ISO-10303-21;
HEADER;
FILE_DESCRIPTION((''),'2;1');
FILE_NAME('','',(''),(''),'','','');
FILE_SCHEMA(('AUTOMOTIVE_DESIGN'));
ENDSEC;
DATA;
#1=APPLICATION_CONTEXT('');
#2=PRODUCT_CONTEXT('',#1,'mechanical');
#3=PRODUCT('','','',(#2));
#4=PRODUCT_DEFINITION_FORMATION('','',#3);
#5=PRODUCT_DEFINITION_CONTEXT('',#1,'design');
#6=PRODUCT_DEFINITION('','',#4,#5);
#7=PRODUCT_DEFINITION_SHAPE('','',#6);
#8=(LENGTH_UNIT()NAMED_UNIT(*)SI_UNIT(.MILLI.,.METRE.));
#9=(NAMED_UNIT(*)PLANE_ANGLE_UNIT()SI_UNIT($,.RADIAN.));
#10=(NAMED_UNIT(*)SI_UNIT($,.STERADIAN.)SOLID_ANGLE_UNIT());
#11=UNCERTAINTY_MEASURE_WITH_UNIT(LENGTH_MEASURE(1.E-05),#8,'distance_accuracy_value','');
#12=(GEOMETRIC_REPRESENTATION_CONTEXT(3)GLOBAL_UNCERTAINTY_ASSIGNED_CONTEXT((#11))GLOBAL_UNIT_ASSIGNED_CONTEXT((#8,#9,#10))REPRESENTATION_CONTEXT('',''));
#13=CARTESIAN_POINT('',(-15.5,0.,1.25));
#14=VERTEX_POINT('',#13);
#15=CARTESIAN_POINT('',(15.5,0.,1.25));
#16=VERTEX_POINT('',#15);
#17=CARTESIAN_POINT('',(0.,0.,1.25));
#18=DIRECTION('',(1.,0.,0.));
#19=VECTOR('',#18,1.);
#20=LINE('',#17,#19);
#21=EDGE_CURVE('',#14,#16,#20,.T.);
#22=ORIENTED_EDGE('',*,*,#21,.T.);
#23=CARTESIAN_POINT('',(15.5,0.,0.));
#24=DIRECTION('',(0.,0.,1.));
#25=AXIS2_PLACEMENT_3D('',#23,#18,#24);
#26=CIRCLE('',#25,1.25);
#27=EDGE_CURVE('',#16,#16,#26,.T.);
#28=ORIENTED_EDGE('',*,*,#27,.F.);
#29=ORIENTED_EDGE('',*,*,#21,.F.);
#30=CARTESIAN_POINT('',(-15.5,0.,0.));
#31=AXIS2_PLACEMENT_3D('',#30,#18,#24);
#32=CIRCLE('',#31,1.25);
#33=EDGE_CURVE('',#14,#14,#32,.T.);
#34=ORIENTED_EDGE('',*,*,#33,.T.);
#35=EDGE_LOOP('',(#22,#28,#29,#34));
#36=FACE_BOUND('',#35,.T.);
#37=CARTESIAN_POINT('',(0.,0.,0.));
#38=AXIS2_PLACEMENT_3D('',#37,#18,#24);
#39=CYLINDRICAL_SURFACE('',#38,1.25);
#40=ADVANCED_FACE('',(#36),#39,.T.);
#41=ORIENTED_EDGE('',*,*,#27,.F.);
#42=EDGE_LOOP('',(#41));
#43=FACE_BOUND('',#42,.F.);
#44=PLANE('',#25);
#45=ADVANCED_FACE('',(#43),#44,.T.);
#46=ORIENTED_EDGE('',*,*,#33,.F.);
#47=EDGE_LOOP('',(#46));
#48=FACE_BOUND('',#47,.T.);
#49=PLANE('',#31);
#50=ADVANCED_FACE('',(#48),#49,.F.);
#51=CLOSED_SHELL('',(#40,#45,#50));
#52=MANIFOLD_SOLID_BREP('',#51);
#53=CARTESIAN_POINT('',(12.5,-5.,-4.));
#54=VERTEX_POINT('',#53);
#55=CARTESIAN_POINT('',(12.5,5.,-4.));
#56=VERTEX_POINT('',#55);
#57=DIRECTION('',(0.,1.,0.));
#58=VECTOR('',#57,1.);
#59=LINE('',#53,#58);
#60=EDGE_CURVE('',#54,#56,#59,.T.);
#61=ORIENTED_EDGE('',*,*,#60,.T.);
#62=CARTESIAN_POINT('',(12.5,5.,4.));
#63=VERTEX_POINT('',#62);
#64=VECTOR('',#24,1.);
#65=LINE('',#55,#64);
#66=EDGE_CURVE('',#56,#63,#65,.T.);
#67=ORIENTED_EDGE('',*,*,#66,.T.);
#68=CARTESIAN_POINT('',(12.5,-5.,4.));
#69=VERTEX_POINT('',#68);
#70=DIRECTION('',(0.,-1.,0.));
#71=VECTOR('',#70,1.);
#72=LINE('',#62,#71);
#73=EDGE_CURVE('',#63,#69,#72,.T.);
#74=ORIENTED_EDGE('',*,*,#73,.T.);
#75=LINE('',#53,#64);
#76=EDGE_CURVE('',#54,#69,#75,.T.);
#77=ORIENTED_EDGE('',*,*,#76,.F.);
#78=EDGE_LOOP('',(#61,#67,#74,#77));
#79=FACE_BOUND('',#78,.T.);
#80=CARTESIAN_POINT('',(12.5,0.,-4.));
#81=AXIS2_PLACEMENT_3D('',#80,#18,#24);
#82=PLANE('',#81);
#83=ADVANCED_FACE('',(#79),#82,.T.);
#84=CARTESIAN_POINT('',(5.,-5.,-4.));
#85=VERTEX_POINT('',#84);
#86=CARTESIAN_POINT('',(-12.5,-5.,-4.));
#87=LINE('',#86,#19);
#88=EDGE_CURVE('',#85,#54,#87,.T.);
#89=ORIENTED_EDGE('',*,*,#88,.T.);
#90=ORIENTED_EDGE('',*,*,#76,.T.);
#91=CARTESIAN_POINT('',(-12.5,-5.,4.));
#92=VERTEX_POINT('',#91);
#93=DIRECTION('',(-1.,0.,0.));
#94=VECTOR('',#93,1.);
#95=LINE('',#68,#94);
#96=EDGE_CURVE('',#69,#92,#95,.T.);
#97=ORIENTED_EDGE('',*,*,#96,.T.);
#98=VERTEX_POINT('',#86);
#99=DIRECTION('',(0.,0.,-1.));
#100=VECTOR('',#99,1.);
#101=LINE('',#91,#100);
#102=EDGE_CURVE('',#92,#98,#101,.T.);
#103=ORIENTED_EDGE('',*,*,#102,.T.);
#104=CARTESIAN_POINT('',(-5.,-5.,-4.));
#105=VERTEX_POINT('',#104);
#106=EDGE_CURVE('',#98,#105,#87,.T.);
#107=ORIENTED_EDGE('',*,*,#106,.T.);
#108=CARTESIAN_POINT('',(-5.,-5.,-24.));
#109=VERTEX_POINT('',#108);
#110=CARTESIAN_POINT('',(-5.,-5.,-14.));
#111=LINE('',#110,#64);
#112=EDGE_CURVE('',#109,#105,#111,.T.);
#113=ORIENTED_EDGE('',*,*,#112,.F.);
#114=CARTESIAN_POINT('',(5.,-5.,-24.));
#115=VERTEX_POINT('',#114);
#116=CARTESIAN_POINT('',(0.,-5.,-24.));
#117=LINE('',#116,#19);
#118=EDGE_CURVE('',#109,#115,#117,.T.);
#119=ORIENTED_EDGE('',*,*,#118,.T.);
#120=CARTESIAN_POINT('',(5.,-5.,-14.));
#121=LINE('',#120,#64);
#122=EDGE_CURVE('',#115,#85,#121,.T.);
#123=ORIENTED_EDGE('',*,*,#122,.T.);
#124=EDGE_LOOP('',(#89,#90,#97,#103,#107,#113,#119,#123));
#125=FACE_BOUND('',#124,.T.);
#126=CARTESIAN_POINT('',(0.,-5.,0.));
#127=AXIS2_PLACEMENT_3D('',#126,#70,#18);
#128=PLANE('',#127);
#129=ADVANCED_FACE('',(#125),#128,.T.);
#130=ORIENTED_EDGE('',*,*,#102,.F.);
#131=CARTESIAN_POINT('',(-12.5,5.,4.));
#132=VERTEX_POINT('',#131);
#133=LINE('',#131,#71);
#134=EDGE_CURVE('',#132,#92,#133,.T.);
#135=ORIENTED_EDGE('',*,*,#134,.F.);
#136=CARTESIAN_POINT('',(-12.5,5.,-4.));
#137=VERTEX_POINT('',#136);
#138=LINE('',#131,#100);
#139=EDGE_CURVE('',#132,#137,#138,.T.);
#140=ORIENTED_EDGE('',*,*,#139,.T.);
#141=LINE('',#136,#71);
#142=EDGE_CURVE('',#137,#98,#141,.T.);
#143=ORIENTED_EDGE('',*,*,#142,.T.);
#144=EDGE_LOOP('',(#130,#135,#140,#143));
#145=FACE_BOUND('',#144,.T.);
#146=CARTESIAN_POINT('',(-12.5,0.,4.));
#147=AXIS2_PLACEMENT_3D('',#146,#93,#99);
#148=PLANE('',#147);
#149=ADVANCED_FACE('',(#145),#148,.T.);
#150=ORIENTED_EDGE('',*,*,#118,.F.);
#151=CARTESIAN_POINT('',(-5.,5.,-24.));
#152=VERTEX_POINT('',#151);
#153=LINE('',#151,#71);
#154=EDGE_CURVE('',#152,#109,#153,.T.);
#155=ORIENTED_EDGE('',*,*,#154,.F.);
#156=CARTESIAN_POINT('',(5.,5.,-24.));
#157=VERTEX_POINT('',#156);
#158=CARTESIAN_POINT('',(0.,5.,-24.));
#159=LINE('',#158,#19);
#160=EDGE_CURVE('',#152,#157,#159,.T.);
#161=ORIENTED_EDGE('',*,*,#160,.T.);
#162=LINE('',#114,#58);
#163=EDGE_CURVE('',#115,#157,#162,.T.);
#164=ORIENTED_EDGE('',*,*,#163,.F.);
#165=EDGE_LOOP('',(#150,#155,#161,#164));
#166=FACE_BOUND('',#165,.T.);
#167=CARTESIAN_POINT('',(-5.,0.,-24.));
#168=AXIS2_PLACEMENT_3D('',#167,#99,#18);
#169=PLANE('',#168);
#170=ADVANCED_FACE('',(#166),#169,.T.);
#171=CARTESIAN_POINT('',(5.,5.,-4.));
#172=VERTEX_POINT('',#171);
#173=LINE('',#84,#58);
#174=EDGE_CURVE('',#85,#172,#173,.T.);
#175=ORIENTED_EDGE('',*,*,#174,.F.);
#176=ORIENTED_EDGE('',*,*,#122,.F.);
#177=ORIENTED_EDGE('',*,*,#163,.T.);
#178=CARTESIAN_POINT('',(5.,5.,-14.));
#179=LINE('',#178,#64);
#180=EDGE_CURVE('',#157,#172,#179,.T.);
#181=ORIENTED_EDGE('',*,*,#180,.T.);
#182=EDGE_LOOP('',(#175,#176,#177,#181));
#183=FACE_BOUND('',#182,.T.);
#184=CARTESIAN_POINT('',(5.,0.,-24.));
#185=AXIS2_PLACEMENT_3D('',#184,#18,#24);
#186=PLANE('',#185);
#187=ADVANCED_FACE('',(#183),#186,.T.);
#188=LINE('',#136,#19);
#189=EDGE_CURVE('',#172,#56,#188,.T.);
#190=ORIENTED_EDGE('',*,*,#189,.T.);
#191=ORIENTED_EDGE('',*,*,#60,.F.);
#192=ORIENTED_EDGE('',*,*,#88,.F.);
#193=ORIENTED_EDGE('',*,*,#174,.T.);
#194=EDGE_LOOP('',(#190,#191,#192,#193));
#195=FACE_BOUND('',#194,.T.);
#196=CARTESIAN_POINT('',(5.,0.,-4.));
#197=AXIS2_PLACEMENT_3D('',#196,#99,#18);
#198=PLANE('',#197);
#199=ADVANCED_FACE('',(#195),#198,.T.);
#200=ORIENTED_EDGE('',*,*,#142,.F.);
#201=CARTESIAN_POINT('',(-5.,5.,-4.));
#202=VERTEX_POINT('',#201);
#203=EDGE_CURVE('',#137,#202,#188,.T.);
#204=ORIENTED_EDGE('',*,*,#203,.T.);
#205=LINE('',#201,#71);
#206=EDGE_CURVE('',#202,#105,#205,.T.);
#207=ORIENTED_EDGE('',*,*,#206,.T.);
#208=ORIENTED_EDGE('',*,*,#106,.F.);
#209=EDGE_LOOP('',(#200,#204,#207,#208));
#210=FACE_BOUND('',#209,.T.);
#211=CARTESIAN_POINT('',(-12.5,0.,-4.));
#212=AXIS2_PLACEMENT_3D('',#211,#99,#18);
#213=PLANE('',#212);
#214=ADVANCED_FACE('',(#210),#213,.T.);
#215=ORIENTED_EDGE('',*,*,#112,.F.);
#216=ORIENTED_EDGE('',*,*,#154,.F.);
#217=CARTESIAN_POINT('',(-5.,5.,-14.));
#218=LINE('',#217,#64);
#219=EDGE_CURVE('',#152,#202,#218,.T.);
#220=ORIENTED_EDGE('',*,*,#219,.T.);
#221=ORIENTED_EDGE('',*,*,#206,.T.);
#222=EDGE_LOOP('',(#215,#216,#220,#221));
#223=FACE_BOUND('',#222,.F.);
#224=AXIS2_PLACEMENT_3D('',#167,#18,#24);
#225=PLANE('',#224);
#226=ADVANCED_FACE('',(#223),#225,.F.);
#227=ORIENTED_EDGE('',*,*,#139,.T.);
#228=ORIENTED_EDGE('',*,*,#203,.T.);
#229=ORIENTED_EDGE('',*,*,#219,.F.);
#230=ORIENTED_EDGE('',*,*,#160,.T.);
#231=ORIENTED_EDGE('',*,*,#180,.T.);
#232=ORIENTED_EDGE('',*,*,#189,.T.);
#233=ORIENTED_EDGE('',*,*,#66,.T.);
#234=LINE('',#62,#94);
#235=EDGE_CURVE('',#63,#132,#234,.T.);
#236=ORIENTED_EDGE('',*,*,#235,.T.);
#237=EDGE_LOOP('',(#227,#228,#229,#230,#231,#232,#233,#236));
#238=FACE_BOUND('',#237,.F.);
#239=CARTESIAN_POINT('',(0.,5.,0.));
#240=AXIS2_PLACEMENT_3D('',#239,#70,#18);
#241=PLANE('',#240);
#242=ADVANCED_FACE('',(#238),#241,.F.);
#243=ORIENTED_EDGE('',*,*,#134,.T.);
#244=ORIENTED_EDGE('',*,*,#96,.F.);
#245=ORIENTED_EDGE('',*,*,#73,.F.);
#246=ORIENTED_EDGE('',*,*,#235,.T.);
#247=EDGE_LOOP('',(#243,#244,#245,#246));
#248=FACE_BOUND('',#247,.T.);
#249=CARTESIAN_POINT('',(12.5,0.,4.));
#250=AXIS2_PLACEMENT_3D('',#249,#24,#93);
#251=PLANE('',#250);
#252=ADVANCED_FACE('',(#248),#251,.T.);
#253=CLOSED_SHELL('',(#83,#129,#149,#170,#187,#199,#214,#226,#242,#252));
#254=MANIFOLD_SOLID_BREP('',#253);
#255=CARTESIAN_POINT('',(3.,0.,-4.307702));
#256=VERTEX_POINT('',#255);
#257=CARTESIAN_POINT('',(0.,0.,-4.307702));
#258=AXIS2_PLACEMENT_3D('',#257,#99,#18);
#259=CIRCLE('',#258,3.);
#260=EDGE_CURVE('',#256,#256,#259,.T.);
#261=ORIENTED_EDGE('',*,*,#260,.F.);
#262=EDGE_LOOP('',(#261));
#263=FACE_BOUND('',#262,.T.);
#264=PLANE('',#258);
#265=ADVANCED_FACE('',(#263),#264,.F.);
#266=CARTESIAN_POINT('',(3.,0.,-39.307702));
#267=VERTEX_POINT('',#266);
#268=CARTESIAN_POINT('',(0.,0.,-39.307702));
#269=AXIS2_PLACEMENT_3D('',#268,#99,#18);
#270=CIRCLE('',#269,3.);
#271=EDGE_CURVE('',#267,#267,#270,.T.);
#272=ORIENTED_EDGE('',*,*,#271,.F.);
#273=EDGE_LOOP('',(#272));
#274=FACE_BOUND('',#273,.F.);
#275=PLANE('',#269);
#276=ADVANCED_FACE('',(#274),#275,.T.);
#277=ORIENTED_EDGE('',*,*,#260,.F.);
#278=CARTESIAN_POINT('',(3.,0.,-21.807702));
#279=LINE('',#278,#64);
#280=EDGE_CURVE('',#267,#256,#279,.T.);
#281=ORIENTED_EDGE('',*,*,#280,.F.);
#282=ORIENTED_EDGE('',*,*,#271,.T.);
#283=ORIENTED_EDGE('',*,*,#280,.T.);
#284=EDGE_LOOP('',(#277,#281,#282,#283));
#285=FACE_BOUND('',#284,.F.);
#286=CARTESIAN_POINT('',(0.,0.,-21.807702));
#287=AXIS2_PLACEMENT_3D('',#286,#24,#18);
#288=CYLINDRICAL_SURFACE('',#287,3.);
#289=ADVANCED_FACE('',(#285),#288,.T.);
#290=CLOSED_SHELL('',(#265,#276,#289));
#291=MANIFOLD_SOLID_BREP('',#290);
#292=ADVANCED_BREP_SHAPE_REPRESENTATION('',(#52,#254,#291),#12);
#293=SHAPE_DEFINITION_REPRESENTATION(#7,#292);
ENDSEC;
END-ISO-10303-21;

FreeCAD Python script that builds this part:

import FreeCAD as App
import Part
import Sketcher

V = App.Vector
Q = App.Units.Quantity

doc = App.newDocument("Part")
body = doc.addObject("PartDesign::Body", "Body")

sketch1 = body.newObject("Sketcher::SketchObject", "Sketch")
sketch1.AttachmentSupport = (doc.getObject("XZ_Plane"), [""])
sketch1.MapMode = "FlatFace"
sketch1.addGeometry(Part.LineSegment(V(0, -4.3, 0), V(0, -39.3, 0)), False)
sketch1.addGeometry(Part.LineSegment(V(0, -39.3, 0), V(3, -39.3, 0)), False)
sketch1.addGeometry(Part.LineSegment(V(3, -39.3, 0), V(3, -4.3, 0)), False)
sketch1.addGeometry(Part.LineSegment(V(3, -4.3, 0), V(0, -4.3, 0)), False)
sketch1.addConstraint(Sketcher.Constraint("Coincident", 0, 2, 1, 1))
sketch1.addConstraint(Sketcher.Constraint("Coincident", 1, 2, 2, 1))
sketch1.addConstraint(Sketcher.Constraint("Coincident", 2, 2, 3, 1))
sketch1.addConstraint(Sketcher.Constraint("Coincident", 3, 2, 0, 1))
sketch1.addConstraint(Sketcher.Constraint("Vertical", 0))
sketch1.addConstraint(Sketcher.Constraint("Horizontal", 1))
sketch1.addConstraint(Sketcher.Constraint("Vertical", 2))
sketch1.addConstraint(Sketcher.Constraint("Horizontal", 3))
sketch1.addConstraint(Sketcher.Constraint("PointOnObject", 0, 2, -2))
sketch1.addConstraint(Sketcher.Constraint("DistanceX", 1, 1, 1, 2, Q("3 mm")))
sketch1.addConstraint(Sketcher.Constraint("DistanceY", 0, 2, 0, 1, Q("35 mm")))
sketch1.addConstraint(Sketcher.Constraint("DistanceY", 0, 2, -1, 1, Q("39.307702 mm")))
revolution = body.newObject("PartDesign::Revolution", "Revolution")
revolution.Profile = sketch1
revolution.ReferenceAxis = (sketch1, ["V_Axis"])
revolution.Angle = 360
body2 = doc.addObject("PartDesign::Body", "Body001")

sketch2 = body2.newObject("Sketcher::SketchObject", "Sketch001")
sketch2.AttachmentSupport = (doc.getObject("XZ_Plane001"), [""])
sketch2.MapMode = "FlatFace"
sketch2.addGeometry(Part.LineSegment(V(-15.5, 1.2, 0), V(-15.5, 0, 0)), False)
sketch2.addGeometry(Part.LineSegment(V(-15.5, 0, 0), V(15.5, 0, 0)), False)
sketch2.addGeometry(Part.LineSegment(V(15.5, 0, 0), V(15.5, 1.2, 0)), False)
sketch2.addGeometry(Part.LineSegment(V(15.5, 1.2, 0), V(-15.5, 1.2, 0)), False)
sketch2.addConstraint(Sketcher.Constraint("Coincident", 0, 2, 1, 1))
sketch2.addConstraint(Sketcher.Constraint("Coincident", 1, 2, 2, 1))
sketch2.addConstraint(Sketcher.Constraint("Coincident", 2, 2, 3, 1))
sketch2.addConstraint(Sketcher.Constraint("Coincident", 3, 2, 0, 1))
sketch2.addConstraint(Sketcher.Constraint("Vertical", 0))
sketch2.addConstraint(Sketcher.Constraint("Horizontal", 1))
sketch2.addConstraint(Sketcher.Constraint("Vertical", 2))
sketch2.addConstraint(Sketcher.Constraint("Horizontal", 3))
sketch2.addConstraint(Sketcher.Constraint("Symmetric", 0, 2, 1, 2, -1, 1))
sketch2.addConstraint(Sketcher.Constraint("DistanceX", 1, 1, 1, 2, Q("31 mm")))
sketch2.addConstraint(Sketcher.Constraint("DistanceY", 0, 2, 0, 1, Q("1.25 mm")))
revolution2 = body2.newObject("PartDesign::Revolution", "Revolution001")
revolution2.Profile = sketch2
revolution2.ReferenceAxis = (sketch2, ["H_Axis"])
revolution2.Angle = 360
body3 = doc.addObject("PartDesign::Body", "Body002")

sketch3 = body3.newObject("Sketcher::SketchObject", "Sketch002")
sketch3.AttachmentSupport = (doc.getObject("XZ_Plane002"), [""])
sketch3.MapMode = "FlatFace"
sketch3.addGeometry(Part.LineSegment(V(12, -4, 0), V(12, 4, 0)), False)
sketch3.addGeometry(Part.LineSegment(V(12, 4, 0), V(-12, 4, 0)), False)
sketch3.addGeometry(Part.LineSegment(V(-12, 4, 0), V(-12, -4, 0)), False)
sketch3.addGeometry(Part.LineSegment(V(-12, -4, 0), V(-5, -4, 0)), False)
sketch3.addGeometry(Part.LineSegment(V(-5, -4, 0), V(-5, -24, 0)), False)
sketch3.addGeometry(Part.LineSegment(V(-5, -24, 0), V(5, -24, 0)), False)
sketch3.addGeometry(Part.LineSegment(V(5, -24, 0), V(5, -4, 0)), False)
sketch3.addGeometry(Part.LineSegment(V(5, -4, 0), V(12, -4, 0)), False)
sketch3.addConstraint(Sketcher.Constraint("Coincident", 0, 2, 1, 1))
sketch3.addConstraint(Sketcher.Constraint("Coincident", 1, 2, 2, 1))
sketch3.addConstraint(Sketcher.Constraint("Coincident", 2, 2, 3, 1))
sketch3.addConstraint(Sketcher.Constraint("Coincident", 3, 2, 4, 1))
sketch3.addConstraint(Sketcher.Constraint("Coincident", 4, 2, 5, 1))
sketch3.addConstraint(Sketcher.Constraint("Coincident", 5, 2, 6, 1))
sketch3.addConstraint(Sketcher.Constraint("Coincident", 6, 2, 7, 1))
sketch3.addConstraint(Sketcher.Constraint("Coincident", 7, 2, 0, 1))
sketch3.addConstraint(Sketcher.Constraint("Vertical", 0))
sketch3.addConstraint(Sketcher.Constraint("Horizontal", 1))
sketch3.addConstraint(Sketcher.Constraint("Vertical", 2))
sketch3.addConstraint(Sketcher.Constraint("Horizontal", 3))
sketch3.addConstraint(Sketcher.Constraint("Vertical", 4))
sketch3.addConstraint(Sketcher.Constraint("Horizontal", 5))
sketch3.addConstraint(Sketcher.Constraint("Vertical", 6))
sketch3.addConstraint(Sketcher.Constraint("Horizontal", 7))
sketch3.addConstraint(Sketcher.Constraint("Symmetric", 0, 2, 2, 2, -1, 1))
sketch3.addConstraint(Sketcher.Constraint("Symmetric", 3, 2, 6, 2, -2))
sketch3.addConstraint(Sketcher.Constraint("DistanceX", 1, 2, 1, 1, Q("25 mm")))
sketch3.addConstraint(Sketcher.Constraint("DistanceX", 5, 1, 5, 2, Q("10 mm")))
sketch3.addConstraint(Sketcher.Constraint("DistanceY", 0, 1, 0, 2, Q("8 mm")))
sketch3.addConstraint(Sketcher.Constraint("DistanceY", 4, 2, 4, 1, Q("20 mm")))
pad1 = body3.newObject("PartDesign::Pad", "Pad")
pad1.Profile = sketch3
pad1.Length = 10
pad1.Midplane = True

doc.recompute()
